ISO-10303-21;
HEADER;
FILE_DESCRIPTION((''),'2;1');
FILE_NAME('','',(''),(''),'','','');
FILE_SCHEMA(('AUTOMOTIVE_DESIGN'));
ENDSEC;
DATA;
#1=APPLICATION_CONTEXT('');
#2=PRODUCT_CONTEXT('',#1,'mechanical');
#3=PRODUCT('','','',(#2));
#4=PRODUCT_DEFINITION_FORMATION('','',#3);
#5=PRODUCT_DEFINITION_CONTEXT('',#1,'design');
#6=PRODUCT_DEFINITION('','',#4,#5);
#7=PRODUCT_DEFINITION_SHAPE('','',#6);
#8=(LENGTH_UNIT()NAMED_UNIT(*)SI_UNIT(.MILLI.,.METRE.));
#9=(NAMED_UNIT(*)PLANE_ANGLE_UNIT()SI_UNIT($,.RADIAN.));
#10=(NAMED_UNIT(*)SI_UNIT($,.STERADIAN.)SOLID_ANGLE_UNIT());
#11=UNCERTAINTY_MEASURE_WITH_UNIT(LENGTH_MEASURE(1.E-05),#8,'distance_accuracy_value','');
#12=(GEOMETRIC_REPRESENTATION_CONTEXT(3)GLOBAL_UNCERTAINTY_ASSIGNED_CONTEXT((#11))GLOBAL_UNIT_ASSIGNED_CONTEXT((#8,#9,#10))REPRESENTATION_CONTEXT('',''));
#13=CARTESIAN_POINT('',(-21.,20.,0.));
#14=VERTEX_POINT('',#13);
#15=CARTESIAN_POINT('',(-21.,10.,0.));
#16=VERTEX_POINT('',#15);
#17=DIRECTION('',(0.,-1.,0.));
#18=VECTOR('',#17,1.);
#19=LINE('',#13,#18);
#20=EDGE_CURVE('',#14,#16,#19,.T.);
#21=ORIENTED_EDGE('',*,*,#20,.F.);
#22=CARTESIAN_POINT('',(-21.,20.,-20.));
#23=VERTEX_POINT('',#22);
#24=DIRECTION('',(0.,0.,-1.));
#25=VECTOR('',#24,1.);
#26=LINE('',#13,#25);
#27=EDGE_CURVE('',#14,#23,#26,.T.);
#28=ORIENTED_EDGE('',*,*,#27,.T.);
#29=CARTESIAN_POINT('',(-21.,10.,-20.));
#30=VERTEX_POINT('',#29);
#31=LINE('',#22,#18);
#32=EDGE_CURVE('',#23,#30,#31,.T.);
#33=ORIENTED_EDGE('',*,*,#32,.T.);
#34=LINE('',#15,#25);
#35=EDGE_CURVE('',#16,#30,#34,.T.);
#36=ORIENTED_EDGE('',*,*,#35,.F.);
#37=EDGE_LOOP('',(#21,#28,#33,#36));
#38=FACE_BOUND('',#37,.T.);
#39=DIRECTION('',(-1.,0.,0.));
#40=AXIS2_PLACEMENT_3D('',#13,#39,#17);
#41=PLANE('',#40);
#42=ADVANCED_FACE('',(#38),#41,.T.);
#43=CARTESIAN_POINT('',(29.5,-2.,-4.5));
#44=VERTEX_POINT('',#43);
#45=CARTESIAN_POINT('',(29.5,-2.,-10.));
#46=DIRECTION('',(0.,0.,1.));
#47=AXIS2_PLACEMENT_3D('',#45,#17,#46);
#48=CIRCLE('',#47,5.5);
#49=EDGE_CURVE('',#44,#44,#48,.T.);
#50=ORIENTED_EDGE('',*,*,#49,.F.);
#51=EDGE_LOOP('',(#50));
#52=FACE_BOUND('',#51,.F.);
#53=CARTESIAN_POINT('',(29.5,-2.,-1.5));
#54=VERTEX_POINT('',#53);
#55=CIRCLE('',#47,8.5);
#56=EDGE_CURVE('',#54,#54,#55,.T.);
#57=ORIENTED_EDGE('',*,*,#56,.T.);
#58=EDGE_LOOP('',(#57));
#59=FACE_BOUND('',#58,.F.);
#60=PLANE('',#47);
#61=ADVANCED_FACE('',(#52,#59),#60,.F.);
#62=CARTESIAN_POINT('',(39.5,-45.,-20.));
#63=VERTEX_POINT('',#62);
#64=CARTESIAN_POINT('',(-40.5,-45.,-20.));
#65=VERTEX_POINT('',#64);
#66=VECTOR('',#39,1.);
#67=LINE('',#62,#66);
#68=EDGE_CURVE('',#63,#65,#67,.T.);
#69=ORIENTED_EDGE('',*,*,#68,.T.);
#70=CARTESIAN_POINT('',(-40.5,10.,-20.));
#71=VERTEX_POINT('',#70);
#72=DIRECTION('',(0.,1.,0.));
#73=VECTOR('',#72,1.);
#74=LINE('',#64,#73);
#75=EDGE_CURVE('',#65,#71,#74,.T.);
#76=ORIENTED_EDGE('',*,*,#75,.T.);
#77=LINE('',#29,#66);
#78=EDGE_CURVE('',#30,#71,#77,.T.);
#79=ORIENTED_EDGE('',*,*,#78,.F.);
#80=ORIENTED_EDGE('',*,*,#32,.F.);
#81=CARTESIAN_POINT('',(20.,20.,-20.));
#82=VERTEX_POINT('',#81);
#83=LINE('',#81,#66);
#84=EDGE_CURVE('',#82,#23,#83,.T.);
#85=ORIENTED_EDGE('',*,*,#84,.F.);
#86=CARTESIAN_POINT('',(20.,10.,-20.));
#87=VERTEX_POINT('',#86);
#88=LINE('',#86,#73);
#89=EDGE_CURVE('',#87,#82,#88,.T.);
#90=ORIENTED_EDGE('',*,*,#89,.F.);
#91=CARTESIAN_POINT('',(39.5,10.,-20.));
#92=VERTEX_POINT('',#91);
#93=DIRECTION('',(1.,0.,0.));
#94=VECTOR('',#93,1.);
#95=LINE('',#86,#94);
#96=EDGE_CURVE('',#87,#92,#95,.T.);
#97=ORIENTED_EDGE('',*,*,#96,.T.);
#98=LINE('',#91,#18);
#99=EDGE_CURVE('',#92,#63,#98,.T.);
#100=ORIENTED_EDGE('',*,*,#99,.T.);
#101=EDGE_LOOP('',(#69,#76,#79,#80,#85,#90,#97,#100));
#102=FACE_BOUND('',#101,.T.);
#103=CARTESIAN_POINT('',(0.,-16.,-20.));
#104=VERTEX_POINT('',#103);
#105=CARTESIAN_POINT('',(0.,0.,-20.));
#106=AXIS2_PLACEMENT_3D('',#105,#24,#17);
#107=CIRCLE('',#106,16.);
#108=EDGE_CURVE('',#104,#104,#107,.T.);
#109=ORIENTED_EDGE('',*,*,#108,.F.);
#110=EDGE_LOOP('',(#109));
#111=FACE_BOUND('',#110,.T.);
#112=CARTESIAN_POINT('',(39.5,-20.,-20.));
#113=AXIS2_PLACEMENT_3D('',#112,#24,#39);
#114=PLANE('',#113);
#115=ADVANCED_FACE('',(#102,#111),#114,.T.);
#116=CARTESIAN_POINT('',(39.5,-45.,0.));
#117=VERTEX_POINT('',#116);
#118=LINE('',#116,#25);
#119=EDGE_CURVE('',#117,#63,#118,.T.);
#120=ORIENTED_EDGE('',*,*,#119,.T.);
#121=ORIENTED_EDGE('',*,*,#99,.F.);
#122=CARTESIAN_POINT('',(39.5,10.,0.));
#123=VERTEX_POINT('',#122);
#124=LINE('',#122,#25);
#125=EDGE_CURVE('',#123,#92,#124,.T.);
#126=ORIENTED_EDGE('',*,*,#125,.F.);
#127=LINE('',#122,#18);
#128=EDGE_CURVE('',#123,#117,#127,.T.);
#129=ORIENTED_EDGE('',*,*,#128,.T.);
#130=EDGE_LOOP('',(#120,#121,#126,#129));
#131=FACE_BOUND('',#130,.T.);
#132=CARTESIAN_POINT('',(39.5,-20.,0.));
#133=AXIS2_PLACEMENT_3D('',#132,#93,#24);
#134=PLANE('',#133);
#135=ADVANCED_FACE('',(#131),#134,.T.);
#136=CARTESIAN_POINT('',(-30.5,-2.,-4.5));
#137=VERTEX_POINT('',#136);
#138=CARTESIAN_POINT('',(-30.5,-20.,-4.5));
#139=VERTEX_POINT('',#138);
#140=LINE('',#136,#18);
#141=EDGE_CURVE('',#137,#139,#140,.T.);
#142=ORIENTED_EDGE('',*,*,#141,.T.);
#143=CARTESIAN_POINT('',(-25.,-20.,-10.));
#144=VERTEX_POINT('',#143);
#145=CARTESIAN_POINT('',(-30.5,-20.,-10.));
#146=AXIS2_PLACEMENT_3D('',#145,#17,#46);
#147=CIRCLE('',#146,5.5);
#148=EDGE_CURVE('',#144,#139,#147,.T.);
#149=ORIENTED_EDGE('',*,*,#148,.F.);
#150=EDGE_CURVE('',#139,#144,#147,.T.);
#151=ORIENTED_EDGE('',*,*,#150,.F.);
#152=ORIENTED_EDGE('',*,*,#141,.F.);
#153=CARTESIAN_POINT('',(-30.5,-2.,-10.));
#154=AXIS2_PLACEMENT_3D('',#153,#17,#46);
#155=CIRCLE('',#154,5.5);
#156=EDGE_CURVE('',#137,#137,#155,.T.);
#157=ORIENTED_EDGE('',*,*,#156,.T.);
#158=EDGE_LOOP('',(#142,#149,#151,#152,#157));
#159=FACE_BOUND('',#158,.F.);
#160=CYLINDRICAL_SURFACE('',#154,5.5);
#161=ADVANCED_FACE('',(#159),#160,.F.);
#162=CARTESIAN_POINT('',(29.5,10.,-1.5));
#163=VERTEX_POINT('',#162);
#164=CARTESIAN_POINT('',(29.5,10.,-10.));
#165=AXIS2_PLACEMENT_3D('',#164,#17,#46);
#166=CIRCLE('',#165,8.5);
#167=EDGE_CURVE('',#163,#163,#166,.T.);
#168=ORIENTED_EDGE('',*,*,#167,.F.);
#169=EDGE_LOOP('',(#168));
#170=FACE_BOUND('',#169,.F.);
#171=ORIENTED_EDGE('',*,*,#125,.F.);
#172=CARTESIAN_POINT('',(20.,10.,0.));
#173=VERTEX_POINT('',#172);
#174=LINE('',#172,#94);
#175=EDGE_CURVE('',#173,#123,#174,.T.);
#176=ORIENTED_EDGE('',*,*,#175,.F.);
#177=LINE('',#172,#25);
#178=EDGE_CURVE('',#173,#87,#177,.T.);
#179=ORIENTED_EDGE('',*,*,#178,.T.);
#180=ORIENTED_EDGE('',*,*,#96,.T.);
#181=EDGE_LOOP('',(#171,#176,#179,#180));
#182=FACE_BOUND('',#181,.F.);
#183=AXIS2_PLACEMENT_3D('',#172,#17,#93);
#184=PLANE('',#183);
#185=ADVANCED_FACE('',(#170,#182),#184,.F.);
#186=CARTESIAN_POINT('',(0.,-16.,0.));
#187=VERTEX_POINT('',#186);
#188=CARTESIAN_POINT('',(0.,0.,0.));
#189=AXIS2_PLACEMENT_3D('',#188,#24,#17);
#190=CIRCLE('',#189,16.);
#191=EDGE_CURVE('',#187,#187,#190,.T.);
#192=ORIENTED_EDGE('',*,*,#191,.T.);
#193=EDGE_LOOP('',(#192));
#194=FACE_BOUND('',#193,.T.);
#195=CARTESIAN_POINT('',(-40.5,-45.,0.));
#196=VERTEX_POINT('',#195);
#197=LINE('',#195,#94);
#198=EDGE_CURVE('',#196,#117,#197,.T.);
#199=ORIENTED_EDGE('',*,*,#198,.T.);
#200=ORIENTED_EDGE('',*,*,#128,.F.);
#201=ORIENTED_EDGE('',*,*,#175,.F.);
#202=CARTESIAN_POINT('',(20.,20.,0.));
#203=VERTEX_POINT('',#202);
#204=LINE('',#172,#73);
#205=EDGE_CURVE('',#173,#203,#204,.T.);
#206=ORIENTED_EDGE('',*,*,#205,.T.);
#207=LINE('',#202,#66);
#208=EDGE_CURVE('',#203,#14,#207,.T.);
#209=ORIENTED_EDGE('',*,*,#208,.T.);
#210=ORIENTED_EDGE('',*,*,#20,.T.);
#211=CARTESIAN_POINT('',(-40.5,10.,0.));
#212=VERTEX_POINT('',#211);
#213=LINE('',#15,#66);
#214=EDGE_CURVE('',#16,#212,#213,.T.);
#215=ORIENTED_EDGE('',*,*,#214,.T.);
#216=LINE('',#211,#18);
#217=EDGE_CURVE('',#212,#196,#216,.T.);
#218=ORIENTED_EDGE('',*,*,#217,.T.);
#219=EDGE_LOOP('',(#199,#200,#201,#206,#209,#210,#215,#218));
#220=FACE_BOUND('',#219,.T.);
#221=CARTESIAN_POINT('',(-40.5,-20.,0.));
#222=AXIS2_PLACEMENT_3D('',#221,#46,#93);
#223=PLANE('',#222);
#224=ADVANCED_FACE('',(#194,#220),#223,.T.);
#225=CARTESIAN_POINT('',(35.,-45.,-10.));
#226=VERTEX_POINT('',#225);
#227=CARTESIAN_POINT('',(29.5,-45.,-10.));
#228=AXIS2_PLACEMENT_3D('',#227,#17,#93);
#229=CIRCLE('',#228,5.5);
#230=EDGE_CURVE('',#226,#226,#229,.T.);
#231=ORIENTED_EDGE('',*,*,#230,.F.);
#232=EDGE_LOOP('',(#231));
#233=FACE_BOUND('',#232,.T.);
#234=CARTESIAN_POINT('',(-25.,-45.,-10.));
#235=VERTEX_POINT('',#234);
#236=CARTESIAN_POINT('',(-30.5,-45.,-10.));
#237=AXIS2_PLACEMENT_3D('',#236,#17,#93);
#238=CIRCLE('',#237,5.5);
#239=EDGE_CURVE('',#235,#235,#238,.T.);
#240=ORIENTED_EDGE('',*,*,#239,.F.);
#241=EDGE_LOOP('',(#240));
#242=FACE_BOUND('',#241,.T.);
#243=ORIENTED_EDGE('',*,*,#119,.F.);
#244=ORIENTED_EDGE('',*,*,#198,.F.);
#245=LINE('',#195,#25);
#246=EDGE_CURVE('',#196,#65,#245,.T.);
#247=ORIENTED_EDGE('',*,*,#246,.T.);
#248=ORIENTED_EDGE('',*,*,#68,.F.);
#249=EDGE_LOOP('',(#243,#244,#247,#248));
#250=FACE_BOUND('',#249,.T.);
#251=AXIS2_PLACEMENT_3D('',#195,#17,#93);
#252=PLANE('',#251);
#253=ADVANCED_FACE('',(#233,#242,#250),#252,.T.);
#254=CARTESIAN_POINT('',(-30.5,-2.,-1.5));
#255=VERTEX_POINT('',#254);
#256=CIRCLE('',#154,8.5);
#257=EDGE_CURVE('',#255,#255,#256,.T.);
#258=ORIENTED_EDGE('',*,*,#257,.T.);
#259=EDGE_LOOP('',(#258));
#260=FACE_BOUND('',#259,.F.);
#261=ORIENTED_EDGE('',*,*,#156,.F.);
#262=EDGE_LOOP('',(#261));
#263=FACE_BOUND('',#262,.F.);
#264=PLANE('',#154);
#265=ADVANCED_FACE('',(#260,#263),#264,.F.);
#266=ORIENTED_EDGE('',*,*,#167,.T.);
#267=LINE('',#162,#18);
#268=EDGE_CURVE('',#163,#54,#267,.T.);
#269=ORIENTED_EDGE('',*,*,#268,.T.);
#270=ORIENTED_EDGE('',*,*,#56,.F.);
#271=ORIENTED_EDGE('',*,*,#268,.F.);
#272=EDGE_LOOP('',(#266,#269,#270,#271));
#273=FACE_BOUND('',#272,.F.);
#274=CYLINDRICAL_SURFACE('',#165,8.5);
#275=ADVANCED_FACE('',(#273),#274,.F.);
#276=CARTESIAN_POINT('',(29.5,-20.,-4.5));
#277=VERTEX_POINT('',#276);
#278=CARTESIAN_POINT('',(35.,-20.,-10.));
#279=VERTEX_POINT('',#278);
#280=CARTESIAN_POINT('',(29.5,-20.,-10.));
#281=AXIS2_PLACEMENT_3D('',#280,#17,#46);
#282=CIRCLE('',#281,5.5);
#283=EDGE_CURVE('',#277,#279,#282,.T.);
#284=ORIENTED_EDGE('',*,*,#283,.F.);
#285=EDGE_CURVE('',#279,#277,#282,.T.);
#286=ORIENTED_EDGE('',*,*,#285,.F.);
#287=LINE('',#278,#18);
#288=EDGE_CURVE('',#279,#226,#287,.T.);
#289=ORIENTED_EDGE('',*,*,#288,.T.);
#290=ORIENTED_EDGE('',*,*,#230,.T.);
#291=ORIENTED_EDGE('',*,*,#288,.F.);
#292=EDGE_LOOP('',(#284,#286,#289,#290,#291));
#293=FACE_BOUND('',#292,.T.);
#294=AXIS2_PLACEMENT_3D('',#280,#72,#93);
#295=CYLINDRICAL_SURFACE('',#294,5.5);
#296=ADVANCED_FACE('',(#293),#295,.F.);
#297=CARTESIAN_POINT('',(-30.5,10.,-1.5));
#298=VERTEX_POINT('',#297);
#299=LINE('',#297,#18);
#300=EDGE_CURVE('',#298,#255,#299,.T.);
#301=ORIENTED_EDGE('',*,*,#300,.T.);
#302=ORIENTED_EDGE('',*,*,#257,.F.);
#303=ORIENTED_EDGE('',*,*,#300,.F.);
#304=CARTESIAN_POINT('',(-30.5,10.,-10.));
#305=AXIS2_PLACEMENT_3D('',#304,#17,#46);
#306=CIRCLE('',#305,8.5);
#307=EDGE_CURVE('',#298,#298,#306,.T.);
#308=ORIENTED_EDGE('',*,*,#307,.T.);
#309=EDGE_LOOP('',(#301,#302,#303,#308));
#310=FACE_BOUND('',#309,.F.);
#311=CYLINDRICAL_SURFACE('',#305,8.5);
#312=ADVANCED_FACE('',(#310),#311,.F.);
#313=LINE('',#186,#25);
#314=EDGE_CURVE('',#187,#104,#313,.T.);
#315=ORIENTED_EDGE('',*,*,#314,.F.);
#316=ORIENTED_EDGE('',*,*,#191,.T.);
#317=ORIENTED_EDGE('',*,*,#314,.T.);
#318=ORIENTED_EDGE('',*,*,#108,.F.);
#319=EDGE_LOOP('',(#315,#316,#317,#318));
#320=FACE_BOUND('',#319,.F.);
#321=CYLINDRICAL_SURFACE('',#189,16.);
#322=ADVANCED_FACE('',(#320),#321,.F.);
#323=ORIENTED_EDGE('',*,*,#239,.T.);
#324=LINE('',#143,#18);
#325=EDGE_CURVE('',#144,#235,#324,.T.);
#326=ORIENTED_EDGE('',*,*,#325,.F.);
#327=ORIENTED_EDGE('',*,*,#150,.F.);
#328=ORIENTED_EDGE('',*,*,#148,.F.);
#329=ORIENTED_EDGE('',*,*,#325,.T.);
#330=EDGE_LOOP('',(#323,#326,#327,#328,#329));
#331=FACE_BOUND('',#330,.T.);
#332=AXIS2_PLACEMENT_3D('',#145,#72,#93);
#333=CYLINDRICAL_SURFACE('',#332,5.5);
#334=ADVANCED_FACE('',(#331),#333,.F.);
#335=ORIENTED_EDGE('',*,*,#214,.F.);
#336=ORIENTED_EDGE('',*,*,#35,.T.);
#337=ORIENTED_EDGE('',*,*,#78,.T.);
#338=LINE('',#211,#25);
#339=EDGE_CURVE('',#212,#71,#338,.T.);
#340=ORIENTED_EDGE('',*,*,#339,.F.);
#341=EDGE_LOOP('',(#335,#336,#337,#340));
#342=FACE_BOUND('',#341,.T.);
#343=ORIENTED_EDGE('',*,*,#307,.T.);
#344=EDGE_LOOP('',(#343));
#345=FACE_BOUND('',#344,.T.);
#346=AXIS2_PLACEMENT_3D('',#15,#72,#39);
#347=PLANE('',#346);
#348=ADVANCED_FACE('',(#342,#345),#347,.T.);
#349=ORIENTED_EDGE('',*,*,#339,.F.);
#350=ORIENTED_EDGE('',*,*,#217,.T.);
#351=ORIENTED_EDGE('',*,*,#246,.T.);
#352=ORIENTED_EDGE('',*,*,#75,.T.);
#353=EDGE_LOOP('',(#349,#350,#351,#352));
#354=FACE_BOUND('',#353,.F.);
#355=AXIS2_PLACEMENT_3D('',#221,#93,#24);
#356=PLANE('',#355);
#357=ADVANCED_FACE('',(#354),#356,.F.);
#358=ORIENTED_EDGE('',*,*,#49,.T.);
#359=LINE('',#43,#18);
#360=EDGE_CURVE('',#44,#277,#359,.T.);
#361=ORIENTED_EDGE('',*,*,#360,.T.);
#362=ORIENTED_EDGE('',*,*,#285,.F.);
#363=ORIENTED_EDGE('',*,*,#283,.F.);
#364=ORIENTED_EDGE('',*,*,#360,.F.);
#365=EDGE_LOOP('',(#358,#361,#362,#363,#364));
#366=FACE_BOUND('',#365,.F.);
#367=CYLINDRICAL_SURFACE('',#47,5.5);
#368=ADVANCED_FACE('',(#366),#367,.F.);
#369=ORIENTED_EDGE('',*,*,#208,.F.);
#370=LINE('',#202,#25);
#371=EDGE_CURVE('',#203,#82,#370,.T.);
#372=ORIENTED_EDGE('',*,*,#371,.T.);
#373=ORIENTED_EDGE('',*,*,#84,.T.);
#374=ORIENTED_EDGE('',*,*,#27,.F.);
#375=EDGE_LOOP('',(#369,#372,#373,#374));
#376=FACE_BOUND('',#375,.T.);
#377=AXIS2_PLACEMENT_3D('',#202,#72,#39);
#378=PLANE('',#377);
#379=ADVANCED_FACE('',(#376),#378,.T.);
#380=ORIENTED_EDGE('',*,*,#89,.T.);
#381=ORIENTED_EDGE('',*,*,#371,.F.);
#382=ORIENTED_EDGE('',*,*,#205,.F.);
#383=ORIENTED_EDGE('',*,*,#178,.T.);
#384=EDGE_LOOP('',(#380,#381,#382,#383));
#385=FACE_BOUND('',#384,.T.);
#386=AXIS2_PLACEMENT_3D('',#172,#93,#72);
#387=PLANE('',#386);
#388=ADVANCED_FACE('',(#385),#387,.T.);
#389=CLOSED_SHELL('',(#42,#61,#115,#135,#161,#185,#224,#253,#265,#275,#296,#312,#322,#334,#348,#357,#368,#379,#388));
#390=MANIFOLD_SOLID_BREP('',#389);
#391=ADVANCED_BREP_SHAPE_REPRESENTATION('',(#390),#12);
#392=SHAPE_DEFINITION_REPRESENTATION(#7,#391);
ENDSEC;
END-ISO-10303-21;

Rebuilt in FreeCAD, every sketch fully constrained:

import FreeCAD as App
import Part
import Sketcher
from FreeCAD import Vector
Q = App.Units.Quantity

doc = App.newDocument("Part")
body = doc.addObject("PartDesign::Body", "Body")

# Sketch on XY plane
sketch1 = body.newObject("Sketcher::SketchObject", "Sketch")
sketch1.AttachmentSupport = (doc.getObject("XY_Plane"), [""])
sketch1.MapMode = "FlatFace"
sketch1.addGeometry(Part.LineSegment(Vector(40, 10, 0), Vector(20, 10, 0)), False)
sketch1.addGeometry(Part.LineSegment(Vector(20, 10, 0), Vector(20, 20, 0)), False)
sketch1.addGeometry(Part.LineSegment(Vector(20, 20, 0), Vector(-21, 20, 0)), False)
sketch1.addGeometry(Part.LineSegment(Vector(-21, 20, 0), Vector(-21, 10, 0)), False)
sketch1.addGeometry(Part.LineSegment(Vector(-21, 10, 0), Vector(-40, 10, 0)), False)
sketch1.addGeometry(Part.LineSegment(Vector(-40, 10, 0), Vector(-40, -20, 0)), False)
sketch1.addGeometry(Part.LineSegment(Vector(-40, -20, 0), Vector(40, -20, 0)), False)
sketch1.addGeometry(Part.LineSegment(Vector(40, -20, 0), Vector(40, 10, 0)), False)
sketch1.addConstraint(Sketcher.Constraint("Coincident", 0, 2, 1, 1))
sketch1.addConstraint(Sketcher.Constraint("Coincident", 1, 2, 2, 1))
sketch1.addConstraint(Sketcher.Constraint("Coincident", 2, 2, 3, 1))
sketch1.addConstraint(Sketcher.Constraint("Coincident", 3, 2, 4, 1))
sketch1.addConstraint(Sketcher.Constraint("Coincident", 4, 2, 5, 1))
sketch1.addConstraint(Sketcher.Constraint("Coincident", 5, 2, 6, 1))
sketch1.addConstraint(Sketcher.Constraint("Coincident", 6, 2, 7, 1))
sketch1.addConstraint(Sketcher.Constraint("Coincident", 7, 2, 0, 1))
sketch1.addConstraint(Sketcher.Constraint("Horizontal", 0))
sketch1.addConstraint(Sketcher.Constraint("Vertical", 1))
sketch1.addConstraint(Sketcher.Constraint("Horizontal", 2))
sketch1.addConstraint(Sketcher.Constraint("Vertical", 3))
sketch1.addConstraint(Sketcher.Constraint("Horizontal", 4))
sketch1.addConstraint(Sketcher.Constraint("Vertical", 5))
sketch1.addConstraint(Sketcher.Constraint("Horizontal", 6))
sketch1.addConstraint(Sketcher.Constraint("Vertical", 7))
sketch1.addConstraint(Sketcher.Constraint("Horizontal", 0, 2, 3, 2))
sketch1.addConstraint(Sketcher.Constraint("Equal", 0, 4))
sketch1.addConstraint(Sketcher.Constraint("DistanceX", 2, 2, 2, 1, Q("41 mm")))
sketch1.addConstraint(Sketcher.Constraint("DistanceY", 1, 1, 1, 2, Q("10 mm")))
sketch1.addConstraint(Sketcher.Constraint("DistanceY", 5, 2, 5, 1, Q("30 mm")))
sketch1.addConstraint(Sketcher.Constraint("DistanceX", 0, 2, 0, 1, Q("19.5 mm")))
sketch1.addConstraint(Sketcher.Constraint("DistanceY", -1, 1, 0, 2, Q("10 mm")))
sketch1.addConstraint(Sketcher.Constraint("DistanceX", -1, 1, 0, 2, Q("20 mm")))
pad1 = body.newObject("PartDesign::Pad", "Pad")
pad1.Profile = sketch1
pad1.Length = 20
pad1.Reversed = True

# Sketch on XY plane
sketch2 = body.newObject("Sketcher::SketchObject", "Sketch001")
sketch2.AttachmentSupport = (doc.getObject("XY_Plane"), [""])
sketch2.MapMode = "FlatFace"
sketch2.addGeometry(Part.Circle(Vector(0, 0, 0), Vector(0, 0, 1), 16), False)
sketch2.addConstraint(Sketcher.Constraint("Coincident", 0, 3, -1, 1))
sketch2.addConstraint(Sketcher.Constraint("Diameter", 0, Q("32 mm")))
doc.recompute()
hole = body.newObject("PartDesign::Hole", "Hole")
hole.Profile = sketch2
hole.ThreadType = "None"
hole.Diameter = 32
hole.DepthType = "Dimension"
hole.Depth = 20
hole.DrillPoint = "Flat"

# Sketch on XZ plane
sketch3 = body.newObject("Sketcher::SketchObject", "Sketch002")
sketch3.AttachmentSupport = (doc.getObject("XZ_Plane"), [""])
sketch3.MapMode = "FlatFace"
sketch3.AttachmentOffset = App.Placement(Vector(0, 0, -10), App.Rotation())
sketch3.addGeometry(Part.Circle(Vector(30, -10, 0), Vector(0, 0, 1), 6), False)
sketch3.addGeometry(Part.Circle(Vector(-30, -10, 0), Vector(0, 0, 1), 6), False)
sketch3.addConstraint(Sketcher.Constraint("Equal", 0, 1))
sketch3.addConstraint(Sketcher.Constraint("Horizontal", 0, 3, 1, 3))
sketch3.addConstraint(Sketcher.Constraint("Diameter", 0, Q("11 mm")))
sketch3.addConstraint(Sketcher.Constraint("DistanceY", 0, 3, -1, 1, Q("10 mm")))
sketch3.addConstraint(Sketcher.Constraint("DistanceX", 1, 3, 0, 3, Q("60 mm")))
sketch3.addConstraint(Sketcher.Constraint("DistanceX", -1, 1, 0, 3, Q("29.5 mm")))
doc.recompute()
hole2 = body.newObject("PartDesign::Hole", "Hole001")
hole2.Profile = sketch3
hole2.ThreadType = "None"
hole2.Diameter = 11
hole2.DepthType = "ThroughAll"
hole2.HoleCutType = "Counterbore"
hole2.HoleCutDiameter = 17
hole2.HoleCutDepth = 12
hole2.Reversed = True

# Sketch on XZ plane
sketch4 = body.newObject("Sketcher::SketchObject", "Sketch003")
sketch4.AttachmentSupport = (doc.getObject("XZ_Plane"), [""])
sketch4.MapMode = "FlatFace"
sketch4.AttachmentOffset = App.Placement(Vector(0, 0, 20), App.Rotation())
sketch4.addGeometry(Part.LineSegment(Vector(-40, -20, 0), Vector(40, -20, 0)), False)
sketch4.addGeometry(Part.LineSegment(Vector(40, -20, 0), Vector(40, 0, 0)), False)
sketch4.addGeometry(Part.LineSegment(Vector(40, 0, 0), Vector(-40, 0, 0)), False)
sketch4.addGeometry(Part.LineSegment(Vector(-40, 0, 0), Vector(-40, -20, 0)), False)
sketch4.addGeometry(Part.Circle(Vector(-30, -10, 0), Vector(0, 0, 1), 6), False)
sketch4.addGeometry(Part.Circle(Vector(30, -10, 0), Vector(0, 0, 1), 6), False)
sketch4.addConstraint(Sketcher.Constraint("Coincident", 0, 2, 1, 1))
sketch4.addConstraint(Sketcher.Constraint("Coincident", 1, 2, 2, 1))
sketch4.addConstraint(Sketcher.Constraint("Coincident", 2, 2, 3, 1))
sketch4.addConstraint(Sketcher.Constraint("Coincident", 3, 2, 0, 1))
sketch4.addConstraint(Sketcher.Constraint("Horizontal", 0))
sketch4.addConstraint(Sketcher.Constraint("Vertical", 1))
sketch4.addConstraint(Sketcher.Constraint("Horizontal", 2))
sketch4.addConstraint(Sketcher.Constraint("Vertical", 3))
sketch4.addConstraint(Sketcher.Constraint("Equal", 4, 5))
sketch4.addConstraint(Sketcher.Constraint("PointOnObject", 1, 2, -1))
sketch4.addConstraint(Sketcher.Constraint("Horizontal", 4, 3, 5, 3))
sketch4.addConstraint(Sketcher.Constraint("Diameter", 4, Q("11 mm")))
sketch4.addConstraint(Sketcher.Constraint("DistanceX", 0, 1, 0, 2, Q("80 mm")))
sketch4.addConstraint(Sketcher.Constraint("DistanceY", 1, 1, 1, 2, Q("20 mm")))
sketch4.addConstraint(Sketcher.Constraint("DistanceY", 4, 3, -1, 1, Q("10 mm")))
sketch4.addConstraint(Sketcher.Constraint("DistanceX", 4, 3, 5, 3, Q("60 mm")))
sketch4.addConstraint(Sketcher.Constraint("DistanceX", 5, 3, 0, 2, Q("10 mm")))
sketch4.addConstraint(Sketcher.Constraint("DistanceX", 4, 3, -1, 1, Q("30.5 mm")))
pad2 = body.newObject("PartDesign::Pad", "Pad001")
pad2.Profile = sketch4
pad2.Length = 25

doc.recompute()
